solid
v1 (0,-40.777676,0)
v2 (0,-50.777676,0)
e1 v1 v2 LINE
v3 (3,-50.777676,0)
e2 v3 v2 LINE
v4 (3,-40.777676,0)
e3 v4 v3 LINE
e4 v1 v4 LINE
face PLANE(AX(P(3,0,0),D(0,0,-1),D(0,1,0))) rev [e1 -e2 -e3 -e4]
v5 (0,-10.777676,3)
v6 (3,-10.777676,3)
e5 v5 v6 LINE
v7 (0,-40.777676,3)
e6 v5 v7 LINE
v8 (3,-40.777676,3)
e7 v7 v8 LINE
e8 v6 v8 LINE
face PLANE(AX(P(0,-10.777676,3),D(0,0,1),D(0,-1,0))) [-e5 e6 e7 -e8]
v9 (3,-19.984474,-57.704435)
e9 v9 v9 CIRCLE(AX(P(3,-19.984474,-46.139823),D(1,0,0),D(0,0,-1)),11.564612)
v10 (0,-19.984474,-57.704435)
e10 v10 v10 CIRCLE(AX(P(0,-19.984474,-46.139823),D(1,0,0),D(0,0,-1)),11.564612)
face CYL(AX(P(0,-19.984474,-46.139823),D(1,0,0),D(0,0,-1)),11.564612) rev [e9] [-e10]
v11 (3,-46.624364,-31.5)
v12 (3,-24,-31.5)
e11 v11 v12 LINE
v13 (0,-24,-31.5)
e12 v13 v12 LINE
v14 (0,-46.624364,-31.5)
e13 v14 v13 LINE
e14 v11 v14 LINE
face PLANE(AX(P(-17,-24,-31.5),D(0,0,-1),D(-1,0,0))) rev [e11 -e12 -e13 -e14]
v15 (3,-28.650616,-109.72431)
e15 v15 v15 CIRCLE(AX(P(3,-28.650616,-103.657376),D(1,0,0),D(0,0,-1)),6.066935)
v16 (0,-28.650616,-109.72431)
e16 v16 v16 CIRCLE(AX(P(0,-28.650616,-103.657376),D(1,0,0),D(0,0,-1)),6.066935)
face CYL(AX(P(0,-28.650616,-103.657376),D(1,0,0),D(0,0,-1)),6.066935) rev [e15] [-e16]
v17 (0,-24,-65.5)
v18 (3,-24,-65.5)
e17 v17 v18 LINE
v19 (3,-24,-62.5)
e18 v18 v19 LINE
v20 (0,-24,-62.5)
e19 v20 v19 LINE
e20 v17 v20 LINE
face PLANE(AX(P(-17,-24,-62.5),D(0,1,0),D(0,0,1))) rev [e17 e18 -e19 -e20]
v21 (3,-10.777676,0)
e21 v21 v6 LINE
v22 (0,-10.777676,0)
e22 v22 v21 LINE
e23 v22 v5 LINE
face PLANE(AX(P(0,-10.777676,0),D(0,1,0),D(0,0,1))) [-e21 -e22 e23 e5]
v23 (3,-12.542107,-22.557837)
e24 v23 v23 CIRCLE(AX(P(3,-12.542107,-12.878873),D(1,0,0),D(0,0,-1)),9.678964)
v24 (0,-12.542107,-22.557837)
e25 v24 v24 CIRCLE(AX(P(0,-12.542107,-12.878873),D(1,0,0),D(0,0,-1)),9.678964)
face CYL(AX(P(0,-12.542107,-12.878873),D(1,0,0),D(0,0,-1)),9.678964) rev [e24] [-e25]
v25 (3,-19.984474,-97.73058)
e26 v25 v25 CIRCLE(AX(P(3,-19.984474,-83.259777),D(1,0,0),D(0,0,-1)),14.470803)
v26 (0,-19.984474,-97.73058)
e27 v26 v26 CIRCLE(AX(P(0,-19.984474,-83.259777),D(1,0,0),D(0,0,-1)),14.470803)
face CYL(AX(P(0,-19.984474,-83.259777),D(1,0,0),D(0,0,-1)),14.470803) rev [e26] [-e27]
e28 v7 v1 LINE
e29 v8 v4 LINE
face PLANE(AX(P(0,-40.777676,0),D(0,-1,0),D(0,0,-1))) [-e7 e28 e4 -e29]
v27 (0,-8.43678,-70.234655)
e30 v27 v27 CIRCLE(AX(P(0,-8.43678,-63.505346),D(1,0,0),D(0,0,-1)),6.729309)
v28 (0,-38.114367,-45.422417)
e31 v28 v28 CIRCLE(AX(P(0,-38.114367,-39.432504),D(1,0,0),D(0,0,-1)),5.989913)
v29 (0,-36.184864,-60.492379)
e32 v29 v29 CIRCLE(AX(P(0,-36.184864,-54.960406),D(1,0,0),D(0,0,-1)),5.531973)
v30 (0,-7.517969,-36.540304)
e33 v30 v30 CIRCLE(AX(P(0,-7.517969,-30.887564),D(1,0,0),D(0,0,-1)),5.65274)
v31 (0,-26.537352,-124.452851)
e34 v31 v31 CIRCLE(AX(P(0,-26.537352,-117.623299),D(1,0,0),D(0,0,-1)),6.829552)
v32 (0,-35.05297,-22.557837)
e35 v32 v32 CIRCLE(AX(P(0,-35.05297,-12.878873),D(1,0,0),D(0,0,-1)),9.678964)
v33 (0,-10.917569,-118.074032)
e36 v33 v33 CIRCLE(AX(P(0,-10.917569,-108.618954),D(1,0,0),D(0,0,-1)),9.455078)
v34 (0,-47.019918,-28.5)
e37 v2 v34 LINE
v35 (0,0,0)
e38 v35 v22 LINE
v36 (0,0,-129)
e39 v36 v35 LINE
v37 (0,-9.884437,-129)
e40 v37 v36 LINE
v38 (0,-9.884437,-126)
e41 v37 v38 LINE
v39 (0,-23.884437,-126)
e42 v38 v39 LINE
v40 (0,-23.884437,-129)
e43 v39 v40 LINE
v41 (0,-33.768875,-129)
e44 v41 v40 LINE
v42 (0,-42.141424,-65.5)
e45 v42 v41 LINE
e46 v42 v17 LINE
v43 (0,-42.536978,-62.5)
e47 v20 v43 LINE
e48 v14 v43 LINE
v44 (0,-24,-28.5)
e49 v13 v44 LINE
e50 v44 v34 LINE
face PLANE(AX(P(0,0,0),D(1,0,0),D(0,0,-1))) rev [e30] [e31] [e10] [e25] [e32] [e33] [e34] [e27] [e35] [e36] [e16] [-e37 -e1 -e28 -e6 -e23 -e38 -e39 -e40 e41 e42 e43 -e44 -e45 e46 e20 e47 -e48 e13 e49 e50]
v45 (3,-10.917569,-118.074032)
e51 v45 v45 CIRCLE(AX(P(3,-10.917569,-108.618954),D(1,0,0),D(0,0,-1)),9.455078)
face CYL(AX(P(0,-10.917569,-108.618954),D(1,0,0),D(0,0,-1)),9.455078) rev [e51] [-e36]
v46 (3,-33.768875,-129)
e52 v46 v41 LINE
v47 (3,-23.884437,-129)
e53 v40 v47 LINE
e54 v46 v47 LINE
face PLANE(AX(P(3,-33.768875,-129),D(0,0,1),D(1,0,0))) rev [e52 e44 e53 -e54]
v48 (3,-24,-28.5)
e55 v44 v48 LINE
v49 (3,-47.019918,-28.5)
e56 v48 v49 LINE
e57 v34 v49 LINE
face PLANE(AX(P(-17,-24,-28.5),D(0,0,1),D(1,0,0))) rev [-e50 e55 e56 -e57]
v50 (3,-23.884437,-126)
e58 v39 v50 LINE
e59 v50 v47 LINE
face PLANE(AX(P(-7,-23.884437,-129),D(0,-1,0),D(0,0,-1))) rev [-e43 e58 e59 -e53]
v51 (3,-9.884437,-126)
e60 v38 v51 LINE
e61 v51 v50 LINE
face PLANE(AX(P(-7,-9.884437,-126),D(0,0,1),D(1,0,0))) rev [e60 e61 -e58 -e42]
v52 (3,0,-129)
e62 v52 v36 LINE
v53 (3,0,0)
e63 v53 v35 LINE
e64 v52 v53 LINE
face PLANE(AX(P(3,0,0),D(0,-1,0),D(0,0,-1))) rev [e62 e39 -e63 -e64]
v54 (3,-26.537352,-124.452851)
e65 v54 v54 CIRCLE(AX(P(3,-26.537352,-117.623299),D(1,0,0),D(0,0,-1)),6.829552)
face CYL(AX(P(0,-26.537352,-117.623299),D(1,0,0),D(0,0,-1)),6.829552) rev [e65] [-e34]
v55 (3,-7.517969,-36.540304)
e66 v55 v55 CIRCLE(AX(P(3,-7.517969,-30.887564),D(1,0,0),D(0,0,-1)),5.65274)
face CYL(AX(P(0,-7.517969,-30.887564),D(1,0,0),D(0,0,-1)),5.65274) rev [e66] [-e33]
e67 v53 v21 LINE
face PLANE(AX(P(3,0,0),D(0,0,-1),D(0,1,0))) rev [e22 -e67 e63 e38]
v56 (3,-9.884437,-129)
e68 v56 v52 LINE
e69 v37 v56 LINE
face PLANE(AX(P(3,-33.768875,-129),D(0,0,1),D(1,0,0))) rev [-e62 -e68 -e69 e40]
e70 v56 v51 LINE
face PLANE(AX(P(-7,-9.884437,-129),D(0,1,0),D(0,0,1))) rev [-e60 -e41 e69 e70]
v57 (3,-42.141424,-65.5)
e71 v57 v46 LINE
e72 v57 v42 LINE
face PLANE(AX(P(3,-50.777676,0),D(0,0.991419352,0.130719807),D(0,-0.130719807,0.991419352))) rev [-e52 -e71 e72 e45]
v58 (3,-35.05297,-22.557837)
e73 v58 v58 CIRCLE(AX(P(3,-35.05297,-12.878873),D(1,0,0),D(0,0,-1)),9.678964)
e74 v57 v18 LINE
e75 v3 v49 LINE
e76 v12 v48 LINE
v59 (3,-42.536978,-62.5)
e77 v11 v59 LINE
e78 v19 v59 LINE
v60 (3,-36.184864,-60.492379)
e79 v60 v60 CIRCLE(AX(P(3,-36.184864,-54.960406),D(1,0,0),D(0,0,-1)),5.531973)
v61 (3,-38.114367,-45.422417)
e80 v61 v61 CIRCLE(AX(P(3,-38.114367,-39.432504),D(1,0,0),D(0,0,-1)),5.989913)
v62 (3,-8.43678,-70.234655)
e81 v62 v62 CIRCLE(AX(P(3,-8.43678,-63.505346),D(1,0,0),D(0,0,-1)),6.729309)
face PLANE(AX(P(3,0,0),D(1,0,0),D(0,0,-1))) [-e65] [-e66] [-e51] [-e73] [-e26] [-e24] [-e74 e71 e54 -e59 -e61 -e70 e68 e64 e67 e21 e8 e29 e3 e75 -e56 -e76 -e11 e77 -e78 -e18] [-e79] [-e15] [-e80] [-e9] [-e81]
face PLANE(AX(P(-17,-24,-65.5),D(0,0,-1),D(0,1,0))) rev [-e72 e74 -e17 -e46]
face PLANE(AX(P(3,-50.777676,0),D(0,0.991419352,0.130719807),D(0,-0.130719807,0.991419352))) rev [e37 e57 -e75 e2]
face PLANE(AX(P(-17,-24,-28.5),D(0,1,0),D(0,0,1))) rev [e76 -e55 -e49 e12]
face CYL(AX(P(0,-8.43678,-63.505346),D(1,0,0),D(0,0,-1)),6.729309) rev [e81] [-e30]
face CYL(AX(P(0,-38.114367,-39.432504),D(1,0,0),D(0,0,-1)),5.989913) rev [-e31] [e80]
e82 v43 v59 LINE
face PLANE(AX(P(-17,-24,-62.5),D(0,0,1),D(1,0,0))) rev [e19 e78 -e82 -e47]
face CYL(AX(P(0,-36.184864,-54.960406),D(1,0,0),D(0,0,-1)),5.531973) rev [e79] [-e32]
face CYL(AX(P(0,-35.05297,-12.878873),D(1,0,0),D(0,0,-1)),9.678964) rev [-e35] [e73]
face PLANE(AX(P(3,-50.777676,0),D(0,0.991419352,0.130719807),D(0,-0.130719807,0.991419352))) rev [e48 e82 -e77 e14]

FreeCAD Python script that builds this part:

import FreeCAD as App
import Part
import Sketcher
from FreeCAD import Vector
Q = App.Units.Quantity


def add_polygon(sketch, points):
    """Adds a closed chain of lines whose ends are joined by coincident constraints."""
    first, n = sketch.GeometryCount, len(points)
    for a, b in zip(points, points[1:] + points[:1]):
        sketch.addGeometry(Part.LineSegment(App.Vector(*a, 0), App.Vector(*b, 0)), False)
    for i in range(n):
        sketch.addConstraint(Sketcher.Constraint("Coincident", first + i, 2, first + (i + 1) % n, 1))

doc = App.newDocument("Part")
body = doc.addObject("PartDesign::Body", "Body")

# Sketch on YZ plane
sketch1 = body.newObject("Sketcher::SketchObject", "Sketch")
sketch1.AttachmentSupport = (doc.getObject("YZ_Plane"), [""])
sketch1.MapMode = "FlatFace"
add_polygon(sketch1, [(0, 0), (-51, 0), (-34, -129), (0, -129)])  # lines 0-3
sketch1.addConstraint(Sketcher.Constraint("Horizontal", 0))
sketch1.addConstraint(Sketcher.Constraint("Horizontal", 2))
sketch1.addConstraint(Sketcher.Constraint("Vertical", 3))
sketch1.addConstraint(Sketcher.Constraint("Coincident", 3, 2, -1, 1))
sketch1.addConstraint(Sketcher.Constraint("DistanceY", 3, 1, 3, 2, Q("129 mm")))
sketch1.addConstraint(Sketcher.Constraint("DistanceX", 0, 2, 1, 2, Q("17.008802 mm")))
sketch1.addConstraint(Sketcher.Constraint("DistanceX", 0, 2, 0, 1, Q("50.777676 mm")))
pad1 = body.newObject("PartDesign::Pad", "Pad")
pad1.Profile = sketch1
pad1.Length = 3

# Sketch on YZ plane
sketch2 = body.newObject("Sketcher::SketchObject", "Sketch001")
sketch2.AttachmentSupport = (doc.getObject("YZ_Plane"), [""])
sketch2.MapMode = "FlatFace"
sketch2.AttachmentOffset = App.Placement(Vector(0, 0, 3), App.Rotation())
add_polygon(sketch2, [(-24, -28.5), (-52, -28.5), (-52, -31.5), (-24, -31.5)])  # lines 0-3
add_polygon(sketch2, [(-24, -62.5), (-45.4, -62.5), (-45.4, -65.5), (-24, -65.5)])  # lines 4-7
sketch2.addConstraint(Sketcher.Constraint("Horizontal", 0))
sketch2.addConstraint(Sketcher.Constraint("Vertical", 1))
sketch2.addConstraint(Sketcher.Constraint("Horizontal", 2))
sketch2.addConstraint(Sketcher.Constraint("Vertical", 3))
sketch2.addConstraint(Sketcher.Constraint("Horizontal", 4))
sketch2.addConstraint(Sketcher.Constraint("Vertical", 5))
sketch2.addConstraint(Sketcher.Constraint("Horizontal", 6))
sketch2.addConstraint(Sketcher.Constraint("Vertical", 7))
sketch2.addConstraint(Sketcher.Constraint("Vertical", 3, 2, 6, 2))
sketch2.addConstraint(Sketcher.Constraint("Equal", 3, 5))
sketch2.addConstraint(Sketcher.Constraint("DistanceY", 1, 2, 1, 1, Q("3 mm")))
sketch2.addConstraint(Sketcher.Constraint("DistanceX", 2, 2, -1, 1, Q("24 mm")))
sketch2.addConstraint(Sketcher.Constraint("DistanceY", 4, 2, 1, 2, Q("31 mm")))
sketch2.addConstraint(Sketcher.Constraint("DistanceY", 0, 2, -1, 1, Q("28.5 mm")))
sketch2.addConstraint(Sketcher.Constraint("DistanceX", 0, 2, 0, 1, Q("28.023137 mm")))
sketch2.addConstraint(Sketcher.Constraint("DistanceX", 4, 2, 4, 1, Q("21.366018 mm")))
pocket1 = body.newObject("PartDesign::Pocket", "Pocket")
pocket1.Profile = sketch2
pocket1.Length = 20

# Sketch on YZ plane
sketch3 = body.newObject("Sketcher::SketchObject", "Sketch002")
sketch3.AttachmentSupport = (doc.getObject("YZ_Plane"), [""])
sketch3.MapMode = "FlatFace"
sketch3.AttachmentOffset = App.Placement(Vector(0, 0, 3), App.Rotation())
add_polygon(sketch3, [(-10.8, 3), (-40.8, 3), (-40.8, 0), (-10.8, 0)])  # lines 0-3
sketch3.addConstraint(Sketcher.Constraint("Horizontal", 0))
sketch3.addConstraint(Sketcher.Constraint("Vertical", 1))
sketch3.addConstraint(Sketcher.Constraint("Horizontal", 2))
sketch3.addConstraint(Sketcher.Constraint("Vertical", 3))
sketch3.addConstraint(Sketcher.Constraint("PointOnObject", 1, 2, -1))
sketch3.addConstraint(Sketcher.Constraint("DistanceX", 0, 2, 0, 1, Q("30 mm")))
sketch3.addConstraint(Sketcher.Constraint("DistanceY", 1, 2, 1, 1, Q("3 mm")))
sketch3.addConstraint(Sketcher.Constraint("DistanceX", 0, 2, -1, 1, Q("40.777676 mm")))
pad2 = body.newObject("PartDesign::Pad", "Pad001")
pad2.Profile = sketch3
pad2.Length = 3
pad2.Reversed = True

# Sketch on YZ plane
sketch4 = body.newObject("Sketcher::SketchObject", "Sketch003")
sketch4.AttachmentSupport = (doc.getObject("YZ_Plane"), [""])
sketch4.MapMode = "FlatFace"
sketch4.AttachmentOffset = App.Placement(Vector(0, 0, 3), App.Rotation())
sketch4.addGeometry(Part.Circle(Vector(-20, -46, 0), Vector(0, 0, 1), 12), False)
sketch4.addGeometry(Part.Circle(Vector(-11, -109, 0), Vector(0, 0, 1), 9), False)
sketch4.addGeometry(Part.Circle(Vector(-20, -83, 0), Vector(0, 0, 1), 14), False)
sketch4.addGeometry(Part.Circle(Vector(-13, -13, 0), Vector(0, 0, 1), 10), False)
sketch4.addGeometry(Part.Circle(Vector(-35, -13, 0), Vector(0, 0, 1), 10), False)
sketch4.addGeometry(Part.Circle(Vector(-8, -31, 0), Vector(0, 0, 1), 6), False)
sketch4.addGeometry(Part.Circle(Vector(-36, -55, 0), Vector(0, 0, 1), 6), False)
sketch4.addGeometry(Part.Circle(Vector(-38, -39, 0), Vector(0, 0, 1), 6), False)
sketch4.addGeometry(Part.Circle(Vector(-8, -64, 0), Vector(0, 0, 1), 7), False)
sketch4.addGeometry(Part.Circle(Vector(-29, -104, 0), Vector(0, 0, 1), 6), False)
sketch4.addGeometry(Part.Circle(Vector(-27, -118, 0), Vector(0, 0, 1), 7), False)
sketch4.addConstraint(Sketcher.Constraint("Equal", 3, 4))
sketch4.addConstraint(Sketcher.Constraint("Horizontal", 3, 3, 4, 3))
sketch4.addConstraint(Sketcher.Constraint("Vertical", 0, 3, 2, 3))
sketch4.addConstraint(Sketcher.Constraint("Diameter", 5, Q("11.30548 mm")))
sketch4.addConstraint(Sketcher.Constraint("Diameter", 9, Q("12.133869 mm")))
sketch4.addConstraint(Sketcher.Constraint("Diameter", 0, Q("23.129224 mm")))
sketch4.addConstraint(Sketcher.Constraint("Diameter", 1, Q("18.910156 mm")))
sketch4.addConstraint(Sketcher.Constraint("Diameter", 2, Q("28.941606 mm")))
sketch4.addConstraint(Sketcher.Constraint("Diameter", 3, Q("19.357927 mm")))
sketch4.addConstraint(Sketcher.Constraint("Diameter", 6, Q("11.063947 mm")))
sketch4.addConstraint(Sketcher.Constraint("Diameter", 7, Q("11.979827 mm")))
sketch4.addConstraint(Sketcher.Constraint("Diameter", 8, Q("13.458617 mm")))
sketch4.addConstraint(Sketcher.Constraint("Diameter", 10, Q("13.659104 mm")))
sketch4.addConstraint(Sketcher.Constraint("DistanceX", 4, 3, 5, 3, Q("27.535001 mm")))
sketch4.addConstraint(Sketcher.Constraint("DistanceY", 10, 3, -1, 1, Q("117.623299 mm")))
sketch4.addConstraint(Sketcher.Constraint("DistanceX", 4, 3, 1, 3, Q("24.135401 mm")))
sketch4.addConstraint(Sketcher.Constraint("DistanceY", 6, 3, 7, 3, Q("15.527902 mm")))
sketch4.addConstraint(Sketcher.Constraint("DistanceX", 7, 3, 5, 3, Q("30.596398 mm")))
sketch4.addConstraint(Sketcher.Constraint("DistanceY", 9, 3, 2, 3, Q("20.397599 mm")))
sketch4.addConstraint(Sketcher.Constraint("DistanceX", 1, 3, -1, 1, Q("10.917569 mm")))
sketch4.addConstraint(Sketcher.Constraint("DistanceX", 8, 3, -1, 1, Q("8.43678 mm")))
sketch4.addConstraint(Sketcher.Constraint("DistanceX", 10, 3, -1, 1, Q("26.537352 mm")))
sketch4.addConstraint(Sketcher.Constraint("DistanceY", 1, 3, 0, 3, Q("62.479131 mm")))
sketch4.addConstraint(Sketcher.Constraint("DistanceY", 0, 3, 3, 3, Q("33.260949 mm")))
sketch4.addConstraint(Sketcher.Constraint("DistanceY", 5, 3, 3, 3, Q("18.008691 mm")))
sketch4.addConstraint(Sketcher.Constraint("DistanceX", 6, 3, 0, 3, Q("16.200391 mm")))
sketch4.addConstraint(Sketcher.Constraint("DistanceY", 2, 3, 6, 3, Q("28.299371 mm")))
sketch4.addConstraint(Sketcher.Constraint("DistanceY", 6, 3, 5, 3, Q("24.072842 mm")))
sketch4.addConstraint(Sketcher.Constraint("DistanceX", 7, 3, 3, 3, Q("25.57226 mm")))
sketch4.addConstraint(Sketcher.Constraint("DistanceY", 2, 3, 8, 3, Q("19.754431 mm")))
sketch4.addConstraint(Sketcher.Constraint("DistanceX", 6, 3, 9, 3, Q("7.534248 mm")))
sketch4.addConstraint(Sketcher.Constraint("DistanceX", 0, 3, -1, 1, Q("19.984474 mm")))
sketch4.addConstraint(Sketcher.Constraint("DistanceY", 0, 3, -1, 1, Q("46.139823 mm")))
pocket2 = body.newObject("PartDesign::Pocket", "Pocket001")
pocket2.Profile = sketch4
pocket2.Type = "ThroughAll"
pocket2.Midplane = True

# Sketch on YZ plane
sketch5 = body.newObject("Sketcher::SketchObject", "Sketch004")
sketch5.AttachmentSupport = (doc.getObject("YZ_Plane"), [""])
sketch5.MapMode = "FlatFace"
sketch5.AttachmentOffset = App.Placement(Vector(0, 0, 3), App.Rotation())
add_polygon(sketch5, [(-9.9, -126), (-23.9, -126), (-23.9, -129), (-9.9, -129)])  # lines 0-3
sketch5.addConstraint(Sketcher.Constraint("Horizontal", 0))
sketch5.addConstraint(Sketcher.Constraint("Vertical", 1))
sketch5.addConstraint(Sketcher.Constraint("Horizontal", 2))
sketch5.addConstraint(Sketcher.Constraint("Vertical", 3))
sketch5.addConstraint(Sketcher.Constraint("DistanceX", 0, 2, 0, 1, Q("14 mm")))
sketch5.addConstraint(Sketcher.Constraint("DistanceY", 1, 2, 1, 1, Q("3 mm")))
sketch5.addConstraint(Sketcher.Constraint("DistanceY", 0, 2, -1, 1, Q("126 mm")))
sketch5.addConstraint(Sketcher.Constraint("DistanceX", 0, 2, -1, 1, Q("23.884437 mm")))
pocket3 = body.newObject("PartDesign::Pocket", "Pocket002")
pocket3.Profile = sketch5
pocket3.Length = 10

doc.recompute()
